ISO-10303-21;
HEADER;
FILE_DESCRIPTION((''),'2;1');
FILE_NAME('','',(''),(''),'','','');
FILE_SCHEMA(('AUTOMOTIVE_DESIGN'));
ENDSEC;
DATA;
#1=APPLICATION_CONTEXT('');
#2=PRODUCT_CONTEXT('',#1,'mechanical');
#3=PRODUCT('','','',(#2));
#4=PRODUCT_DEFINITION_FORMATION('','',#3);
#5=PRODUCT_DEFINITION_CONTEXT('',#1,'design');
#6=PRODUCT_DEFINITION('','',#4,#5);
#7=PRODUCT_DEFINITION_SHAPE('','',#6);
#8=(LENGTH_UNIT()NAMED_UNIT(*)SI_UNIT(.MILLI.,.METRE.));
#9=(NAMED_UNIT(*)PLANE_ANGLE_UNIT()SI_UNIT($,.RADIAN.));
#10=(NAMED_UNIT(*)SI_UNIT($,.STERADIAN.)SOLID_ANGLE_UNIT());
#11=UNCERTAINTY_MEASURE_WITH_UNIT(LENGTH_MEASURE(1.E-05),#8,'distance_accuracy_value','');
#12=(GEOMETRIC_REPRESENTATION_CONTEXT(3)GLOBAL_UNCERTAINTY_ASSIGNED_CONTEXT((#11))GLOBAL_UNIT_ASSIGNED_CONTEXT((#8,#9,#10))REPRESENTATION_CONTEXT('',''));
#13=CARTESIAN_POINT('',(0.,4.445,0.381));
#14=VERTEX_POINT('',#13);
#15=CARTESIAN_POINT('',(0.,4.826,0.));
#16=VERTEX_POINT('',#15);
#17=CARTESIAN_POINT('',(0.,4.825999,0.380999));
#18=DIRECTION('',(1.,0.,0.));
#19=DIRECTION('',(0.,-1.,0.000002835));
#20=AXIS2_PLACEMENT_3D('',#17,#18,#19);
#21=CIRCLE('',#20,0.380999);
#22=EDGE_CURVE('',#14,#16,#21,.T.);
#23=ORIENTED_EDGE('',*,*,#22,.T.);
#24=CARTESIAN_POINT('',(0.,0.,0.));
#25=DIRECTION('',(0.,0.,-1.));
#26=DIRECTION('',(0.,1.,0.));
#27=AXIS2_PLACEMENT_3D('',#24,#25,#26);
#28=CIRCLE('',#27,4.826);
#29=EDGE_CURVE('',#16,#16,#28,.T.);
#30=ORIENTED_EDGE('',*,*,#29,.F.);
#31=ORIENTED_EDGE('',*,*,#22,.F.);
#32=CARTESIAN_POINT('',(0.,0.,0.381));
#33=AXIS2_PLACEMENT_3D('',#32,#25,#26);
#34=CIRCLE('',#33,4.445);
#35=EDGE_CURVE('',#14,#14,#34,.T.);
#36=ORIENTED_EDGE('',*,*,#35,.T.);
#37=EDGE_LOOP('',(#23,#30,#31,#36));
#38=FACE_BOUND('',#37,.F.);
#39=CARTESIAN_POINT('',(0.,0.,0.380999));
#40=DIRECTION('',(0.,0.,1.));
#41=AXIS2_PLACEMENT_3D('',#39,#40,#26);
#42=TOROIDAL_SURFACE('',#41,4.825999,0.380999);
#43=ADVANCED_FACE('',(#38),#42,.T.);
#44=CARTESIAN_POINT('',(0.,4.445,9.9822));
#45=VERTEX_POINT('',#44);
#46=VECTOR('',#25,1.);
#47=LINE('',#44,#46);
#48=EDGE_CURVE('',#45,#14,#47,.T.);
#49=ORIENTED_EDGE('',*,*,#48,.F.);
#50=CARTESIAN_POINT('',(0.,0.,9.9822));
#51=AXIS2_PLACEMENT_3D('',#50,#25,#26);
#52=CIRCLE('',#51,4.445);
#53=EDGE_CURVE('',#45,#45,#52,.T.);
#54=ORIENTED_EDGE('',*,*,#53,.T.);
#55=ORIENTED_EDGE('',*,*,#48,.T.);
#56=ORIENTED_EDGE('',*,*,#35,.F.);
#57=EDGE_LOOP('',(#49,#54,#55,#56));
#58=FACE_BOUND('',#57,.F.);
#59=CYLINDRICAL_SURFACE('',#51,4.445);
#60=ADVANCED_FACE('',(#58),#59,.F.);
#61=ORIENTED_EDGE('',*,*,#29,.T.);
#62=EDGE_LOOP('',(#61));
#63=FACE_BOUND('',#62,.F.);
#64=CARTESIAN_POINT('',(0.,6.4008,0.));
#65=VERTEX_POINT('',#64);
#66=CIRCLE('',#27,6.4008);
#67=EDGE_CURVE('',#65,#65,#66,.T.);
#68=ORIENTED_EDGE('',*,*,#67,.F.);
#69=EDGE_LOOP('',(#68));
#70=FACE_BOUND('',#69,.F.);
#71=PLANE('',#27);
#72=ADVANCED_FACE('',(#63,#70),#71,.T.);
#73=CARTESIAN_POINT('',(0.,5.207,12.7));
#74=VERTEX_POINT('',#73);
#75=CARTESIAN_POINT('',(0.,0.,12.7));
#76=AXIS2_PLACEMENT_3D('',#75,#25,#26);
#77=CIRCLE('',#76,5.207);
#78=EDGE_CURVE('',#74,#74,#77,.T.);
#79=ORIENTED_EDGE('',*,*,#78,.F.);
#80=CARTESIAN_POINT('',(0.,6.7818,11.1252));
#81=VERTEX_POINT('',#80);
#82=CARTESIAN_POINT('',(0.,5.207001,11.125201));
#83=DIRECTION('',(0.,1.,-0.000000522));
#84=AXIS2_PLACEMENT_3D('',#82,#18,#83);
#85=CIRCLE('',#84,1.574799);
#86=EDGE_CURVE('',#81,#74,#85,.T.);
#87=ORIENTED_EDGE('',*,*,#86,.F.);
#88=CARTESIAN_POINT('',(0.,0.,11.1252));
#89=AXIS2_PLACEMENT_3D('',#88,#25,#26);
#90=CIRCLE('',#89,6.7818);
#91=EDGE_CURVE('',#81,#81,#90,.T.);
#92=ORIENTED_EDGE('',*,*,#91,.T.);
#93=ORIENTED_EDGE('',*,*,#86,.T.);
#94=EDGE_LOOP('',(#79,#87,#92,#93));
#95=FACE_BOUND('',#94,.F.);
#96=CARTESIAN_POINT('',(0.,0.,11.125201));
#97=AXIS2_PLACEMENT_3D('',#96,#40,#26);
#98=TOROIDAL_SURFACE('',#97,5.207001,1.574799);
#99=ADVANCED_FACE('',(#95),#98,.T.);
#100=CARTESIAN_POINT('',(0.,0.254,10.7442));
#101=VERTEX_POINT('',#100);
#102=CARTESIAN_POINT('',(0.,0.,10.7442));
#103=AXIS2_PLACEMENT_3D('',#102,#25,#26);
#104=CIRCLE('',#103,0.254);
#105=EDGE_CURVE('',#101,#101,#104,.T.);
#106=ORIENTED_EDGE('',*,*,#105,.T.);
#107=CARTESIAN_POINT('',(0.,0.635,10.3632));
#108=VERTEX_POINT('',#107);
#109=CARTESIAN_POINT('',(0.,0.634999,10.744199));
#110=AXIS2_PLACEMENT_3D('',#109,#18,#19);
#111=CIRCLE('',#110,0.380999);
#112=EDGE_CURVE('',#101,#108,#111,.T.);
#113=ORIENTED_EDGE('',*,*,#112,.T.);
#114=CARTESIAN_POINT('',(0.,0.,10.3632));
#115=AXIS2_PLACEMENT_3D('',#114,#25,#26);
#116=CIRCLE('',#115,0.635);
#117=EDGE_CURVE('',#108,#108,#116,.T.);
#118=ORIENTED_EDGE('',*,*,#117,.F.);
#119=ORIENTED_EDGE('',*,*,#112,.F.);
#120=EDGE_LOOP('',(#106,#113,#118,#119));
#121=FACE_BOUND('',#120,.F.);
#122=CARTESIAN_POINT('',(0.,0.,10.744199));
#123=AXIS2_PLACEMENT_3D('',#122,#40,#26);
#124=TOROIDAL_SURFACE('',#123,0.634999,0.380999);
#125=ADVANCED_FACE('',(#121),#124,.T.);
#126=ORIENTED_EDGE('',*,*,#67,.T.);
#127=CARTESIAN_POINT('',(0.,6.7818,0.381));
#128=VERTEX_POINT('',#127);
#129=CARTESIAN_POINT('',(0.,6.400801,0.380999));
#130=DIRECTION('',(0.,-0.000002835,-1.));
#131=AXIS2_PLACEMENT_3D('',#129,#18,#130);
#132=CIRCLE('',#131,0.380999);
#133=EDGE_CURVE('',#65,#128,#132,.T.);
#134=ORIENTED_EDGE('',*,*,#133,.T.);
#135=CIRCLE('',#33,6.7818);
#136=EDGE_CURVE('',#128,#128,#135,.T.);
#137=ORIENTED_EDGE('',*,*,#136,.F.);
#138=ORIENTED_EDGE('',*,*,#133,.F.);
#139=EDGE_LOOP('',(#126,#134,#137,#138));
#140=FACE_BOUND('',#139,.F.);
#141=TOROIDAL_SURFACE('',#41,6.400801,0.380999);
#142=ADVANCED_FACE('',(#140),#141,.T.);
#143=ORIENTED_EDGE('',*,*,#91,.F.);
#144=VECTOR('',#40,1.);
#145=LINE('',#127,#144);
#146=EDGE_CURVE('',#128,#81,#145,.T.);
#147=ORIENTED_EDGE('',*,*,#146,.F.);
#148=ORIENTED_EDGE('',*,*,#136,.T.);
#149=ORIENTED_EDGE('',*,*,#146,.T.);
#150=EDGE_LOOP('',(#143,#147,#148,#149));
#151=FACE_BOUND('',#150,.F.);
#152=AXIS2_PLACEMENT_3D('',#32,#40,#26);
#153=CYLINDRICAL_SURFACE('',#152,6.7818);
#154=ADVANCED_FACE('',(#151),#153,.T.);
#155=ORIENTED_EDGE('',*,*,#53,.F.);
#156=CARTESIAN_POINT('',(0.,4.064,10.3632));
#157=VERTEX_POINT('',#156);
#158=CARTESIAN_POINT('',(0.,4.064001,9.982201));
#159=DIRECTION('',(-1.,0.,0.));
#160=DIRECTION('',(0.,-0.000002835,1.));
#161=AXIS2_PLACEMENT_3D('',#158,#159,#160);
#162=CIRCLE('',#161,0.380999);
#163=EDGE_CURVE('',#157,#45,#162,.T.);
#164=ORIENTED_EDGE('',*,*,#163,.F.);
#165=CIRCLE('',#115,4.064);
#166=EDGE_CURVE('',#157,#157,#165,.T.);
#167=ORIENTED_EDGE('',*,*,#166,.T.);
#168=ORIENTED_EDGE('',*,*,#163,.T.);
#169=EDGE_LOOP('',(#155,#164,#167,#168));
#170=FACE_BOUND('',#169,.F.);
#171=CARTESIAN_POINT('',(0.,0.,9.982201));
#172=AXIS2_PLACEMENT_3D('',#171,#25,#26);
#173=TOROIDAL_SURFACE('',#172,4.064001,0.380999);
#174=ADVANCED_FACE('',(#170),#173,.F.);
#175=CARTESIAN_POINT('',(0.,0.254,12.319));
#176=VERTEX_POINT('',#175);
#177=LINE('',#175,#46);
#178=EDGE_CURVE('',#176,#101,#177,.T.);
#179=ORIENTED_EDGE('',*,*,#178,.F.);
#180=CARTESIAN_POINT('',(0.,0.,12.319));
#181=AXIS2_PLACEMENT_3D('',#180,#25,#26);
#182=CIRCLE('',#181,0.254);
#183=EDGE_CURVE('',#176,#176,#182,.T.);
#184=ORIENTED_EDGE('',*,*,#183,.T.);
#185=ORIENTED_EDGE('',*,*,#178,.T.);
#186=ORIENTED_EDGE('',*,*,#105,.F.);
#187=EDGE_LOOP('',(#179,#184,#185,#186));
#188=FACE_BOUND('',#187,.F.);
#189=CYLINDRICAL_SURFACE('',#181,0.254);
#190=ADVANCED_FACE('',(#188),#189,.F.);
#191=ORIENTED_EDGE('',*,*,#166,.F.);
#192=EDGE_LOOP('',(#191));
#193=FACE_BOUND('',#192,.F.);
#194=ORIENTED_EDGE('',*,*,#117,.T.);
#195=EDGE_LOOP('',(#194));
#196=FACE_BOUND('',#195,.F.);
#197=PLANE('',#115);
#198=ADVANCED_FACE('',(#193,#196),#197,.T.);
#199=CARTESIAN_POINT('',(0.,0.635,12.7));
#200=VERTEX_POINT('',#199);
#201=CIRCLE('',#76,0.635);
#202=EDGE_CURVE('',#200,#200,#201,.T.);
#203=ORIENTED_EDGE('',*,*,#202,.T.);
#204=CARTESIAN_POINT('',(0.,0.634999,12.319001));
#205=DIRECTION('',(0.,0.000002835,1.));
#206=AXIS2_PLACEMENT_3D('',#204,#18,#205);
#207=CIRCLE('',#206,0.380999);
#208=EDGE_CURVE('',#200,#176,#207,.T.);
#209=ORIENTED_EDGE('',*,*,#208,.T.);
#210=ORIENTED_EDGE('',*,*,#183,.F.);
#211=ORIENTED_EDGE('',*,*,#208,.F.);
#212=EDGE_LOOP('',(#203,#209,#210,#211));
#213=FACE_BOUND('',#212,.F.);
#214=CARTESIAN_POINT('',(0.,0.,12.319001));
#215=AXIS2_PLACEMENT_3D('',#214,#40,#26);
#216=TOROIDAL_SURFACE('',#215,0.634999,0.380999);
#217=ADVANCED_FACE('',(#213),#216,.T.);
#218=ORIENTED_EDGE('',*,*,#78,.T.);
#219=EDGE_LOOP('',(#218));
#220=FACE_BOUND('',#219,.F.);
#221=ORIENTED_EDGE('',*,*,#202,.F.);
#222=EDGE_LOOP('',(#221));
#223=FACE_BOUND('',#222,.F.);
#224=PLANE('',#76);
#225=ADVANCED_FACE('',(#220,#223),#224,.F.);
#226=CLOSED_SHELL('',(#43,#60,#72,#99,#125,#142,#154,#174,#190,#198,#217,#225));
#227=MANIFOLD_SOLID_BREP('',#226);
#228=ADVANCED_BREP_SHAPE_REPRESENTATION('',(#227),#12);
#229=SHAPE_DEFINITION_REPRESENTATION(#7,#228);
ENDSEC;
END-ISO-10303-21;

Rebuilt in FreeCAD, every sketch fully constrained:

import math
import FreeCAD as App
import Part
import Sketcher
Q = App.Units.Quantity

doc = App.newDocument("Part")
body = doc.addObject("PartDesign::Body", "Body")

sketch1 = doc.addObject("Sketcher::SketchObject", "Sketch")
body.addObject(sketch1)
sketch1.AttachmentSupport = (doc.YZ_Plane, [""])
sketch1.MapMode = "FlatFace"
sketch1.addGeometry([
    Part.ArcOfCircle(Part.Circle(App.Vector(4.83, 0.38, 0), App.Vector(0, 0, 1), 0.38), math.radians(180), math.radians(270)),
    Part.LineSegment(App.Vector(4.83, 0, 0), App.Vector(6.4, 0, 0)),
    Part.ArcOfCircle(Part.Circle(App.Vector(6.4, 0.38, 0), App.Vector(0, 0, 1), 0.38), math.radians(-90), math.radians(0)),
    Part.LineSegment(App.Vector(6.78, 0.38, 0), App.Vector(6.78, 11.13, 0)),
    Part.ArcOfCircle(Part.Circle(App.Vector(5.21, 11.13, 0), App.Vector(0, 0, 1), 1.57), math.radians(0), math.radians(90)),
    Part.LineSegment(App.Vector(5.21, 12.7, 0), App.Vector(0.64, 12.7, 0)),
    Part.ArcOfCircle(Part.Circle(App.Vector(0.63, 12.32, 0), App.Vector(0, 0, 1), 0.38), math.radians(90), math.radians(180)),
    Part.LineSegment(App.Vector(0.25, 12.32, 0), App.Vector(0.25, 10.74, 0)),
    Part.ArcOfCircle(Part.Circle(App.Vector(0.63, 10.74, 0), App.Vector(0, 0, 1), 0.38), math.radians(180), math.radians(270)),
    Part.LineSegment(App.Vector(0.64, 10.36, 0), App.Vector(4.06, 10.36, 0)),
    Part.ArcOfCircle(Part.Circle(App.Vector(4.06, 9.98, 0), App.Vector(0, 0, 1), 0.38), math.radians(0), math.radians(90)),
    Part.LineSegment(App.Vector(4.45, 9.98, 0), App.Vector(4.45, 0.38, 0)),
], False)
sketch1.addConstraint([
    Sketcher.Constraint("Coincident", 0, 2, 1, 1),
    Sketcher.Constraint("Coincident", 1, 2, 2, 1),
    Sketcher.Constraint("Coincident", 2, 2, 3, 1),
    Sketcher.Constraint("Tangent", 3, 2, 4, 1),
    Sketcher.Constraint("Tangent", 4, 2, 5, 1),
    Sketcher.Constraint("Coincident", 5, 2, 6, 1),
    Sketcher.Constraint("Coincident", 6, 2, 7, 1),
    Sketcher.Constraint("Coincident", 7, 2, 8, 1),
    Sketcher.Constraint("Coincident", 8, 2, 9, 1),
    Sketcher.Constraint("Coincident", 9, 2, 10, 2),
    Sketcher.Constraint("Coincident", 10, 1, 11, 1),
    Sketcher.Constraint("Coincident", 11, 2, 0, 1),
    Sketcher.Constraint("Horizontal", 1),
    Sketcher.Constraint("Vertical", 3),
    Sketcher.Constraint("Horizontal", 5),
    Sketcher.Constraint("Vertical", 7),
    Sketcher.Constraint("Horizontal", 9),
    Sketcher.Constraint("Vertical", 11),
    Sketcher.Constraint("Equal", 0, 2),
    Sketcher.Constraint("Equal", 2, 6),
    Sketcher.Constraint("Equal", 6, 8),
    Sketcher.Constraint("Equal", 8, 10),
    Sketcher.Constraint("PointOnObject", 0, 2, -1),
    Sketcher.Constraint("Horizontal", 0, 3, 2, 2),
    Sketcher.Constraint("Horizontal", 8, 3, 7, 2),
    Sketcher.Constraint("Horizontal", 2, 2, 11, 2),
    Sketcher.Constraint("Vertical", 2, 3, 1, 2),
    Sketcher.Constraint("Vertical", 8, 3, 5, 2),
    Sketcher.Constraint("Vertical", 5, 2, 8, 2),
    Sketcher.Constraint("Vertical", 10, 3, 9, 2),
    Sketcher.Constraint("Equal", 1, 7),
    Sketcher.Constraint("Radius", 0, Q("0.015 in")),
    Sketcher.Constraint("Radius", 4, Q("0.062 in")),
    Sketcher.Constraint("DistanceX", 5, 2, 5, 1, Q("0.18 in")),
    Sketcher.Constraint("DistanceY", -1, 1, 4, 2, Q("0.5 in")),
    Sketcher.Constraint("DistanceX", 1, 1, 1, 2, Q("0.062 in")),
    Sketcher.Constraint("DistanceX", 9, 1, 9, 2, Q("0.135 in")),
    Sketcher.Constraint("DistanceY", 11, 2, 11, 1, Q("0.378 in")),
    Sketcher.Constraint("DistanceX", -1, 1, 0, 3, Q("0.19 in")),
    Sketcher.Constraint("DistanceY", 9, 2, 4, 3, Q("0.03 in")),
])
revolution = doc.addObject("PartDesign::Revolution", "Revolution")
body.addObject(revolution)
revolution.Profile = sketch1
revolution.ReferenceAxis = (sketch1, ["V_Axis"])
revolution.Angle = 360

doc.recompute()
